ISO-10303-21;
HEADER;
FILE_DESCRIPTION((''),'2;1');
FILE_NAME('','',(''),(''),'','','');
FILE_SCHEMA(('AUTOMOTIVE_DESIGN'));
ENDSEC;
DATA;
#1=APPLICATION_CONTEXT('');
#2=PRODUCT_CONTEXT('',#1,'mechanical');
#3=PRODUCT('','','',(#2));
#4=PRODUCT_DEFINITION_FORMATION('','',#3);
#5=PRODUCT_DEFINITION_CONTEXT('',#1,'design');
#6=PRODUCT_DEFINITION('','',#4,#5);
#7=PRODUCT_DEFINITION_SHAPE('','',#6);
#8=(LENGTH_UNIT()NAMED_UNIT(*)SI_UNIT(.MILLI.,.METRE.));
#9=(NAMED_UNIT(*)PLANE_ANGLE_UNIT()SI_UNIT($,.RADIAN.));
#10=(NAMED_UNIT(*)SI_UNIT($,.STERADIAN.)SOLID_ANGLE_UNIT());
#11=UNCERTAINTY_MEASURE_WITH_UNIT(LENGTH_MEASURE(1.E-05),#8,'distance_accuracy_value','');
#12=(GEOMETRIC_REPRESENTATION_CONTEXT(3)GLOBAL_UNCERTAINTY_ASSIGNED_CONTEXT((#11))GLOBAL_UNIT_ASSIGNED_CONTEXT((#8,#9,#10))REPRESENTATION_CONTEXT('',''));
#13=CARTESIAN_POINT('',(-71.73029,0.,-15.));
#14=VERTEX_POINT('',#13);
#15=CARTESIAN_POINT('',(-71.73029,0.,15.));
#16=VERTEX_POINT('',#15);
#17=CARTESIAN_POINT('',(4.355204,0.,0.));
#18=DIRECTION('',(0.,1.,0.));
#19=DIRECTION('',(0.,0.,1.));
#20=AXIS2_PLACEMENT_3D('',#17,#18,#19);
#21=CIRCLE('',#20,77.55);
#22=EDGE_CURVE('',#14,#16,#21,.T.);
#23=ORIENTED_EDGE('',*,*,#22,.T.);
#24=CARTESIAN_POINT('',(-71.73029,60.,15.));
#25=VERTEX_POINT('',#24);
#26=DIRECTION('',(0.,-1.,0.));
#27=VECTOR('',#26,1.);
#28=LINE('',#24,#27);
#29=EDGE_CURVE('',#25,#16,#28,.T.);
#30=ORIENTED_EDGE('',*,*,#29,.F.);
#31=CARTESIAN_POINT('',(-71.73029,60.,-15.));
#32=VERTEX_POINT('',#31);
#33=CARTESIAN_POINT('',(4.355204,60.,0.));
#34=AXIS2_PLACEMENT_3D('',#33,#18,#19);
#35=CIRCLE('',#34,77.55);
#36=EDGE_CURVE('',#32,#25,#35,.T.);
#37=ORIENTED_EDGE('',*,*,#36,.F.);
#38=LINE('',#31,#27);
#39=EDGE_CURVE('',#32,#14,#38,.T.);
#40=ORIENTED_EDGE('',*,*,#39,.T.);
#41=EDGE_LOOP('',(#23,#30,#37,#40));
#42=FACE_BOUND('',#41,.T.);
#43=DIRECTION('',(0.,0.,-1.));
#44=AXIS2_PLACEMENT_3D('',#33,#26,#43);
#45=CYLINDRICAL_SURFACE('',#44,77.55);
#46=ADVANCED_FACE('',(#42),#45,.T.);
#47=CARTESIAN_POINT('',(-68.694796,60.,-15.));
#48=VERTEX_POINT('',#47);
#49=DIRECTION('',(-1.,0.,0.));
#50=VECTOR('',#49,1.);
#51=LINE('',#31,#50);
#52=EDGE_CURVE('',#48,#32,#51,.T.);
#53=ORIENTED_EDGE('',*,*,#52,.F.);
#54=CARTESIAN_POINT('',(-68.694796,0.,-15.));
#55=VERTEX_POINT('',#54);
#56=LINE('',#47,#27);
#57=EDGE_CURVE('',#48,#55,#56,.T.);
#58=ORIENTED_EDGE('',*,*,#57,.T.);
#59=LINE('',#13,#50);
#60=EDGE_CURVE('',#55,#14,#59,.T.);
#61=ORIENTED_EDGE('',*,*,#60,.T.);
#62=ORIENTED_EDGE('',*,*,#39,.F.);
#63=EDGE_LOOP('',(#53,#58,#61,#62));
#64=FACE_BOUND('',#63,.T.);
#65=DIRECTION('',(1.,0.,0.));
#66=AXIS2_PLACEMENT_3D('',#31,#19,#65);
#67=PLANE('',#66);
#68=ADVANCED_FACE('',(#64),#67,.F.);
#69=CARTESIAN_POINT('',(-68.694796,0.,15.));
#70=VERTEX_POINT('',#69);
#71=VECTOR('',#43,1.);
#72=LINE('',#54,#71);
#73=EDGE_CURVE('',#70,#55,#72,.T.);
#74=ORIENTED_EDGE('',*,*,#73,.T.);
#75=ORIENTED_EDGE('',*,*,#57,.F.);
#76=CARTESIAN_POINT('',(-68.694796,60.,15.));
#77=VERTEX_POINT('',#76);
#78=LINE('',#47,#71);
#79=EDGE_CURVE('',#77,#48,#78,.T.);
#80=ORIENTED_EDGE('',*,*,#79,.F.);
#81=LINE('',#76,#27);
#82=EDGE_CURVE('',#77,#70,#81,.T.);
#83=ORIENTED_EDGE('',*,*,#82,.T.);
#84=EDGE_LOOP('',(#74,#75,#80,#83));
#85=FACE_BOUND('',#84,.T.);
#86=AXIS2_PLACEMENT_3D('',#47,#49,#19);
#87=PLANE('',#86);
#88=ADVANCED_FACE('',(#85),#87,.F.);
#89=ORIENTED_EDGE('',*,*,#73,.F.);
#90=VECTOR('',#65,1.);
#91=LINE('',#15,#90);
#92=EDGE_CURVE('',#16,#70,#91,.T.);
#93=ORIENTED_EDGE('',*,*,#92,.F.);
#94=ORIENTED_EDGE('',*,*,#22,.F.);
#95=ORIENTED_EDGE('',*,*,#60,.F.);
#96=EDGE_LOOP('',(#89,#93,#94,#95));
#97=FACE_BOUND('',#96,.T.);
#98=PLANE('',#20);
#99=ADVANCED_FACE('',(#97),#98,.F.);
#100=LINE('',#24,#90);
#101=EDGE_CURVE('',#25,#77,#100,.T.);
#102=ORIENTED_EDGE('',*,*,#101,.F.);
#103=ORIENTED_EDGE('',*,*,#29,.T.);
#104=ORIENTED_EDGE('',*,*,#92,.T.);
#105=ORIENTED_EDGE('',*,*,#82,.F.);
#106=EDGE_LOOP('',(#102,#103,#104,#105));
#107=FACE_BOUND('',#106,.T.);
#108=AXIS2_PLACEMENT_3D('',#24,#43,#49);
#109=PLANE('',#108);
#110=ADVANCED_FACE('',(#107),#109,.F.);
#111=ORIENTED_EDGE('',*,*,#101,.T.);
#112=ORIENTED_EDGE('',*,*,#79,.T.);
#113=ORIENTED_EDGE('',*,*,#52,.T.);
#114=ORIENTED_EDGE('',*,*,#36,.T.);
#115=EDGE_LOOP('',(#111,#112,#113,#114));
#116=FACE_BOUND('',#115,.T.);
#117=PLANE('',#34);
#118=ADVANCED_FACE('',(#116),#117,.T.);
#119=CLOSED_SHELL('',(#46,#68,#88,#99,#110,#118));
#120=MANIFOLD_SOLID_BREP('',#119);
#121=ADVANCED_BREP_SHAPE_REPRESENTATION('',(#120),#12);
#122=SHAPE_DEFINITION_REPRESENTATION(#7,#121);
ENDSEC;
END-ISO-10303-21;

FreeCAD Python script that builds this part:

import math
import FreeCAD as App
import Part
import Sketcher

V = App.Vector

doc = App.newDocument("Part")
body = doc.addObject("PartDesign::Body", "Body")

sketch1 = body.newObject("Sketcher::SketchObject", "Sketch")
sketch1.AttachmentSupport = (doc.getObject("XZ_Plane"), [""])
sketch1.MapMode = "FlatFace"
sketch1.addGeometry([
    Part.LineSegment(V(-68.7, -15, 0), V(-71.7, -15, 0)),
    Part.ArcOfCircle(Part.Circle(V(4.4, 0, 0), V(0, 0, 1), 77.6), math.radians(169), math.radians(191)),
    Part.LineSegment(V(-71.7, 15, 0), V(-68.7, 15, 0)),
    Part.LineSegment(V(-68.7, 15, 0), V(-68.7, -15, 0)),
], False)
sketch1.addConstraint([
    Sketcher.Constraint("Coincident", 0, 2, 1, 2),
    Sketcher.Constraint("Coincident", 1, 1, 2, 1),
    Sketcher.Constraint("Coincident", 2, 2, 3, 1),
    Sketcher.Constraint("Coincident", 3, 2, 0, 1),
    Sketcher.Constraint("Horizontal", 0),
    Sketcher.Constraint("Horizontal", 2),
    Sketcher.Constraint("Vertical", 3),
    Sketcher.Constraint("Symmetric", 0, 2, 1, 1, -1),
    Sketcher.Constraint("DistanceY", 3, 2, 3, 1, 30.0),
    Sketcher.Constraint("Radius", 1, 77.55),
    Sketcher.Constraint("DistanceX", 2, 2, 1, 3, 73.05),
    Sketcher.Constraint("DistanceX", 0, 2, -1, 1, 71.73029),
])
pad1 = body.newObject("PartDesign::Pad", "Pad")
pad1.Profile = sketch1
pad1.Length = 60
pad1.Reversed = True

doc.recompute()
